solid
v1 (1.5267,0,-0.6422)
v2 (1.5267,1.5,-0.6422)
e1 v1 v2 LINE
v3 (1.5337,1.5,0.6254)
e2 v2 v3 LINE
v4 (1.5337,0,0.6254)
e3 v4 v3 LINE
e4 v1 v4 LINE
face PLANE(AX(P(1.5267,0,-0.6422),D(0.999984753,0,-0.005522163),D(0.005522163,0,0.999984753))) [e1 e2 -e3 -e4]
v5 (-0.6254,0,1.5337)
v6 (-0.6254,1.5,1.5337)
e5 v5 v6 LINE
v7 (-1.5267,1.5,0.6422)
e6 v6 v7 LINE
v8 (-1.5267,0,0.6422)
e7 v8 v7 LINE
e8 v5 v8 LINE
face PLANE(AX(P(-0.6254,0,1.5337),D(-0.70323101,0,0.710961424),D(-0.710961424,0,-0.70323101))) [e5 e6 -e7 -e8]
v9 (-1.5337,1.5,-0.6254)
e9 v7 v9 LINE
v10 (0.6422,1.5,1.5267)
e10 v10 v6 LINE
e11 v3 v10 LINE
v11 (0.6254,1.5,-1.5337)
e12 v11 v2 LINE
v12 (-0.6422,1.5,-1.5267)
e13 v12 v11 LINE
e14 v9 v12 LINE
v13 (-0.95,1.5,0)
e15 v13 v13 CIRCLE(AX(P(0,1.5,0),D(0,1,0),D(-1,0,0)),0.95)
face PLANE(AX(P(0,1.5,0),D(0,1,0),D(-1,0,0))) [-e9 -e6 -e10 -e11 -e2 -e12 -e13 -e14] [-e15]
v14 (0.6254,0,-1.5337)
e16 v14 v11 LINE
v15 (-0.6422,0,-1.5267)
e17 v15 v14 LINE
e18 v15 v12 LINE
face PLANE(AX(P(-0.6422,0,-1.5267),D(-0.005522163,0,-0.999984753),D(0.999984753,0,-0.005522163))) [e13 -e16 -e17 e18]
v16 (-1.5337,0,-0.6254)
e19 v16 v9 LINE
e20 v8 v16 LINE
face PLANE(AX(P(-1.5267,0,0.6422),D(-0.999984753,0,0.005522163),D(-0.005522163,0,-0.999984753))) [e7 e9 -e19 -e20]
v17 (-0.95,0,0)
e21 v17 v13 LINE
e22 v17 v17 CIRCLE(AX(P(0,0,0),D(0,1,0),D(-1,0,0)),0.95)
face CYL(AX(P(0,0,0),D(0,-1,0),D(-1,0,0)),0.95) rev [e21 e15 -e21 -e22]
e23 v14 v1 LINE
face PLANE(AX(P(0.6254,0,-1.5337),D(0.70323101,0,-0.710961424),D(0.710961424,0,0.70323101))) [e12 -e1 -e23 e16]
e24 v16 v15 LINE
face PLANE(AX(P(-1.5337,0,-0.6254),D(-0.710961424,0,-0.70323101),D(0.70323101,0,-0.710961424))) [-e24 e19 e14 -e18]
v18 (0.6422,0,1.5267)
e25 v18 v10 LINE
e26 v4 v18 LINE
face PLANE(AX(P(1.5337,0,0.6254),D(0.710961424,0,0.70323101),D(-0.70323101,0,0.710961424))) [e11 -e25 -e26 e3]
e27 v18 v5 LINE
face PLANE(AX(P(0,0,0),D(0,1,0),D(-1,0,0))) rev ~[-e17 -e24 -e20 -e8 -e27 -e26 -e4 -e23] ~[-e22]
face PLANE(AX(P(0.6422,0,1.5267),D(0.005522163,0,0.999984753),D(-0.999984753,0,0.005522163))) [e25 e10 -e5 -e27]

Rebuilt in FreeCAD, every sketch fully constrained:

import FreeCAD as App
import Part
import Sketcher
from FreeCAD import Vector


def add_polygon(sketch, points):
    """Adds a closed chain of lines whose ends are joined by coincident constraints."""
    first, n = sketch.GeometryCount, len(points)
    for a, b in zip(points, points[1:] + points[:1]):
        sketch.addGeometry(Part.LineSegment(App.Vector(*a, 0), App.Vector(*b, 0)), False)
    for i in range(n):
        sketch.addConstraint(Sketcher.Constraint("Coincident", first + i, 2, first + (i + 1) % n, 1))

doc = App.newDocument("Part")
body = doc.addObject("PartDesign::Body", "Body")

sketch1 = body.newObject("Sketcher::SketchObject", "Sketch")
sketch1.AttachmentSupport = (doc.getObject("XZ_Plane"), [""])
sketch1.MapMode = "FlatFace"
add_polygon(sketch1, [(0.6, -1.5), (-0.6, -1.5), (-1.5, -0.6), (-1.5, 0.6), (-0.6, 1.5), (0.6, 1.5), (1.5, 0.6), (1.5, -0.6)])
sketch1.addGeometry(Part.Circle(Vector(0, 0, 0), Vector(0, 0, 1), 0.9), False)
sketch1.addConstraint([
    Sketcher.Constraint("Coincident", 8, 3, -1, 1),
    Sketcher.Constraint("Symmetric", 0, 2, 4, 2, -1, 1),
    Sketcher.Constraint("Symmetric", 1, 2, 5, 2, -1, 1),
    Sketcher.Constraint("Symmetric", 2, 2, 6, 2, -1, 1),
    Sketcher.Constraint("Symmetric", 3, 2, 7, 2, -1, 1),
    Sketcher.Constraint("Perpendicular", 0, 2),
    Sketcher.Constraint("Perpendicular", 1, 3),
    Sketcher.Constraint("Equal", 0, 1),
    Sketcher.Constraint("Equal", 1, 2),
    Sketcher.Constraint("Equal", 2, 3),
    Sketcher.Constraint("Diameter", 8, 1.9),
    Sketcher.Constraint("DistanceX", 1, 2, 2, 2, 0.007),
    Sketcher.Constraint("DistanceY", 0, 2, 2, 2, 2.169),
    Sketcher.Constraint("DistanceY", 1, 2, 3, 2, 2.159),
])
pad1 = body.newObject("PartDesign::Pad", "Pad")
pad1.Profile = sketch1
pad1.Length = 1.5
pad1.Reversed = True

doc.recompute()
